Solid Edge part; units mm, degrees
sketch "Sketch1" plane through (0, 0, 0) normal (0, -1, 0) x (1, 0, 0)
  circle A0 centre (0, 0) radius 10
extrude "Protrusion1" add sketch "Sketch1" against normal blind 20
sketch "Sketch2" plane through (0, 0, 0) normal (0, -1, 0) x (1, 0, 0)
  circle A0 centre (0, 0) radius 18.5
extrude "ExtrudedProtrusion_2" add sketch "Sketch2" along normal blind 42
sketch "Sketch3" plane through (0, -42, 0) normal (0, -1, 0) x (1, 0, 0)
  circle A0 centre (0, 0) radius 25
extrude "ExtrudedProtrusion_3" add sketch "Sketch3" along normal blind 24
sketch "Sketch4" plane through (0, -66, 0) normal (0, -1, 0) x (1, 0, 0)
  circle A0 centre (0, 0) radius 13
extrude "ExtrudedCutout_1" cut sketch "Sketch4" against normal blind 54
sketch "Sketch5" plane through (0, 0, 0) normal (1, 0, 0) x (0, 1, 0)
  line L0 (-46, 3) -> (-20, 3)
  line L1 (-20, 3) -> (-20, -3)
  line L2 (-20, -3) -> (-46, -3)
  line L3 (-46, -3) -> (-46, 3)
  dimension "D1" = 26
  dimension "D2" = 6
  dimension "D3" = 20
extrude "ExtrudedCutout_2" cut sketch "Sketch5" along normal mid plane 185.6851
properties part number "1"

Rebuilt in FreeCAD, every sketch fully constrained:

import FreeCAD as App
import Part
import Sketcher
from FreeCAD import Vector
Q = App.Units.Quantity

doc = App.newDocument("Part")
body = doc.addObject("PartDesign::Body", "Body")

sketch1 = body.newObject("Sketcher::SketchObject", "Sketch")
sketch1.AttachmentSupport = (doc.getObject("XZ_Plane"), [""])
sketch1.MapMode = "FlatFace"
sketch1.addGeometry(Part.Circle(Vector(0, 0, 0), Vector(0, 0, 1), 10), False)
sketch1.addConstraint([
    Sketcher.Constraint("Coincident", 0, 3, -1, 1),
    Sketcher.Constraint("Diameter", 0, Q("20 mm")),
])
pad1 = body.newObject("PartDesign::Pad", "Pad")
pad1.Profile = sketch1
pad1.Length = 20
pad1.Reversed = True

sketch2 = body.newObject("Sketcher::SketchObject", "Sketch001")
sketch2.AttachmentSupport = (doc.getObject("XZ_Plane"), [""])
sketch2.MapMode = "FlatFace"
sketch2.addGeometry(Part.Circle(Vector(0, 0, 0), Vector(0, 0, 1), 18), False)
sketch2.addConstraint([
    Sketcher.Constraint("Coincident", 0, 3, -1, 1),
    Sketcher.Constraint("Diameter", 0, Q("37 mm")),
])
pad2 = body.newObject("PartDesign::Pad", "Pad001")
pad2.Profile = sketch2
pad2.Length = 42

sketch3 = body.newObject("Sketcher::SketchObject", "Sketch002")
sketch3.AttachmentSupport = (doc.getObject("XZ_Plane"), [""])
sketch3.MapMode = "FlatFace"
sketch3.AttachmentOffset = App.Placement(Vector(0, 0, 42), App.Rotation())
sketch3.addGeometry(Part.Circle(Vector(0, 0, 0), Vector(0, 0, 1), 25), False)
sketch3.addConstraint([
    Sketcher.Constraint("Coincident", 0, 3, -1, 1),
    Sketcher.Constraint("Diameter", 0, Q("50 mm")),
])
pad3 = body.newObject("PartDesign::Pad", "Pad002")
pad3.Profile = sketch3
pad3.Length = 24

sketch4 = body.newObject("Sketcher::SketchObject", "Sketch003")
sketch4.AttachmentSupport = (doc.getObject("XZ_Plane"), [""])
sketch4.MapMode = "FlatFace"
sketch4.AttachmentOffset = App.Placement(Vector(0, 0, 66), App.Rotation())
sketch4.addGeometry(Part.Circle(Vector(0, 0, 0), Vector(0, 0, 1), 13), False)
sketch4.addConstraint([
    Sketcher.Constraint("Coincident", 0, 3, -1, 1),
    Sketcher.Constraint("Diameter", 0, Q("26 mm")),
])
pocket1 = body.newObject("PartDesign::Pocket", "Pocket")
pocket1.Profile = sketch4
pocket1.Length = 54

sketch5 = body.newObject("Sketcher::SketchObject", "Sketch004")
sketch5.AttachmentSupport = (doc.getObject("YZ_Plane"), [""])
sketch5.MapMode = "FlatFace"
sketch5.addGeometry([
    Part.LineSegment(Vector(-20, 3, 0), Vector(-46, 3, 0)),
    Part.LineSegment(Vector(-46, 3, 0), Vector(-46, -3, 0)),
    Part.LineSegment(Vector(-46, -3, 0), Vector(-20, -3, 0)),
    Part.LineSegment(Vector(-20, -3, 0), Vector(-20, 3, 0)),
], False)
sketch5.addConstraint([
    Sketcher.Constraint("Coincident", 0, 2, 1, 1),
    Sketcher.Constraint("Coincident", 1, 2, 2, 1),
    Sketcher.Constraint("Coincident", 2, 2, 3, 1),
    Sketcher.Constraint("Coincident", 3, 2, 0, 1),
    Sketcher.Constraint("Horizontal", 0),
    Sketcher.Constraint("Vertical", 1),
    Sketcher.Constraint("Horizontal", 2),
    Sketcher.Constraint("Vertical", 3),
    Sketcher.Constraint("DistanceX", 0, 2, -1, 1, Q("46 mm")),
    Sketcher.Constraint("DistanceX", 0, 2, 0, 1, Q("26 mm")),
    Sketcher.Constraint("DistanceY", 1, 2, 1, 1, Q("6 mm")),
    Sketcher.Constraint("DistanceY", -1, 1, 0, 2, Q("3 mm")),
])
pocket2 = body.newObject("PartDesign::Pocket", "Pocket001")
pocket2.Profile = sketch5
pocket2.Length = 185.6851
pocket2.Midplane = True

doc.recompute()
